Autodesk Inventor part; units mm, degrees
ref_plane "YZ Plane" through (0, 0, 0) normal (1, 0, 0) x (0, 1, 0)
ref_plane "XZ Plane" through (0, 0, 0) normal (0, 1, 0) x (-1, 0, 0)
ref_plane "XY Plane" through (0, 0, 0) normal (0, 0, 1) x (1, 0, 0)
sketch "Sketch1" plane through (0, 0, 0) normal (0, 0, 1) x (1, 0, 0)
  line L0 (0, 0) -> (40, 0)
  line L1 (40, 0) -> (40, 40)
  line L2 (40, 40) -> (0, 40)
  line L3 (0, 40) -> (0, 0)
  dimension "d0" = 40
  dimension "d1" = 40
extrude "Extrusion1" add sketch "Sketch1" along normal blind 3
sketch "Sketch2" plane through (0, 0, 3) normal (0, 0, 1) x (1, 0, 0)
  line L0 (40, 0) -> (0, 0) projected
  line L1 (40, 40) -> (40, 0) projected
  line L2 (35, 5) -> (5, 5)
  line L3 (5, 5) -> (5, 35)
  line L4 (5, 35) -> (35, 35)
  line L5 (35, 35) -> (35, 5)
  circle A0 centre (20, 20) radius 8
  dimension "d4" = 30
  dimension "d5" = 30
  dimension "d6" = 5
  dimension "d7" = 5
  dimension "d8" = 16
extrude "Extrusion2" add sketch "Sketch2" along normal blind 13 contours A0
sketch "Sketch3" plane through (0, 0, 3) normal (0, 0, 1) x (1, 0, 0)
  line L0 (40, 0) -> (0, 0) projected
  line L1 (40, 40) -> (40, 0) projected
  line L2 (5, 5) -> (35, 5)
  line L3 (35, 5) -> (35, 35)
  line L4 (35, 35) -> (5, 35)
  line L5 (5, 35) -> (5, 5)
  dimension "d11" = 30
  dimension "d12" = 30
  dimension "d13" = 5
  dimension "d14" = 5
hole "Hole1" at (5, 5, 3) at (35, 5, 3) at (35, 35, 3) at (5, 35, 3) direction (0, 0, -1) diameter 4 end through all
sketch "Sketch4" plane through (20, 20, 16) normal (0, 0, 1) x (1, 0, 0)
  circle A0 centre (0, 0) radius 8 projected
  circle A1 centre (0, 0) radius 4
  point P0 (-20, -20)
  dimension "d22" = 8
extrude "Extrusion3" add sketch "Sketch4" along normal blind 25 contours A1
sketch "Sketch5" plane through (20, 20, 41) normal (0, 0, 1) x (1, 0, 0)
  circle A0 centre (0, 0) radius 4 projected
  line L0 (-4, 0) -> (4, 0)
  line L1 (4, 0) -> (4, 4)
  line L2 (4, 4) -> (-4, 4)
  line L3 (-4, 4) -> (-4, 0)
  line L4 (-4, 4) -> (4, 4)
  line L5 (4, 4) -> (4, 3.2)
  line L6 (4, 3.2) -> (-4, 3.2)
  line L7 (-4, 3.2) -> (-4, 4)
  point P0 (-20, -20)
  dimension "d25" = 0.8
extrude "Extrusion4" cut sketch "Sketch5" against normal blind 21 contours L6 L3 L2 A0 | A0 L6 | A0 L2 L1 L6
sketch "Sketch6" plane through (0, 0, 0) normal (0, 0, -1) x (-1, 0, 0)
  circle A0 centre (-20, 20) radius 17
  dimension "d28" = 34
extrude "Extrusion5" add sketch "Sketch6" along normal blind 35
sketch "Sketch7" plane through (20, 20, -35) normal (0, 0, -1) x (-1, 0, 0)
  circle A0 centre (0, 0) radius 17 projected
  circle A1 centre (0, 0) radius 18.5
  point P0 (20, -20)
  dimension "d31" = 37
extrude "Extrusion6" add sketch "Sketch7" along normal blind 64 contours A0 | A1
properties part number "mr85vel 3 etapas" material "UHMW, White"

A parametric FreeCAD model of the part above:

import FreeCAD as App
import Part
import Sketcher
from FreeCAD import Vector
Q = App.Units.Quantity


def add_polygon(sketch, points):
    """Adds a closed chain of lines whose ends are joined by coincident constraints."""
    first, n = sketch.GeometryCount, len(points)
    for a, b in zip(points, points[1:] + points[:1]):
        sketch.addGeometry(Part.LineSegment(App.Vector(*a, 0), App.Vector(*b, 0)), False)
    for i in range(n):
        sketch.addConstraint(Sketcher.Constraint("Coincident", first + i, 2, first + (i + 1) % n, 1))

doc = App.newDocument("Part")
params = doc.addObject("Spreadsheet::Sheet", "Params")
for row, (alias, value) in enumerate([
    ("sketch1_width", "40 mm"),
    ("pad1_length", "3 mm"),
    ("sketch2_diameter", "16 mm"),
    ("pad2_length", "13 mm"),
    ("sketch3_diameter", "4 mm"),
    ("hole_diameter", "4 mm"),
    ("sketch4_diameter", "8 mm"),
    ("pad3_length", "25 mm"),
    ("sketch5_height", "0.8 mm"),
    ("sketch5_width", "8 mm"),
    ("pocket1_length", "21 mm"),
    ("sketch6_diameter", "34 mm"),
    ("pad4_length", "35 mm"),
    ("sketch7_diameter", "37 mm"),
    ("pad5_length", "64 mm"),
], start=1):
    params.set(f"A{row}", alias)
    params.set(f"B{row}", "=" + value)
    params.setAlias(f"B{row}", alias)

body = doc.addObject("PartDesign::Body", "Body")

# Sketch on XY plane
sketch1 = body.newObject("Sketcher::SketchObject", "Sketch")
sketch1.AttachmentSupport = (doc.getObject("XY_Plane"), [""])
sketch1.MapMode = "FlatFace"
add_polygon(sketch1, [(0, 40), (0, 0), (40, 0), (40, 40)])  # lines 0-3
sketch1.addConstraint([
    Sketcher.Constraint("Vertical", 0),
    Sketcher.Constraint("Horizontal", 1),
    Sketcher.Constraint("Vertical", 2),
    Sketcher.Constraint("Horizontal", 3),
    Sketcher.Constraint("Coincident", 0, 2, -1, 1),
    Sketcher.Constraint("Equal", 3, 0),
    Sketcher.Constraint("DistanceX", 1, 1, 1, 2, Q("40 mm")),
])
sketch1.setExpression("Constraints[10]", "Params.sketch1_width")
pad1 = body.newObject("PartDesign::Pad", "Pad")
pad1.Profile = sketch1
pad1.setExpression("Length", "Params.pad1_length")

# Sketch on XY plane
sketch2 = body.newObject("Sketcher::SketchObject", "Sketch001")
sketch2.AttachmentSupport = (doc.getObject("XY_Plane"), [""])
sketch2.MapMode = "FlatFace"
sketch2.AttachmentOffset = App.Placement(Vector(0, 0, 3), App.Rotation())
sketch2.addGeometry(Part.Circle(Vector(20, 20, 0), Vector(0, 0, 1), 8), False)
sketch2.addConstraint([
    Sketcher.Constraint("Diameter", 0, Q("16 mm")),
    Sketcher.Constraint("DistanceX", -1, 1, 0, 3, Q("20 mm")),
    Sketcher.Constraint("DistanceY", -1, 1, 0, 3, Q("20 mm")),
])
sketch2.setExpression("Constraints[0]", "Params.sketch2_diameter")
pad2 = body.newObject("PartDesign::Pad", "Pad001")
pad2.Profile = sketch2
pad2.setExpression("Length", "Params.pad2_length")

# Sketch on XY plane
sketch3 = body.newObject("Sketcher::SketchObject", "Sketch002")
sketch3.AttachmentSupport = (doc.getObject("XY_Plane"), [""])
sketch3.MapMode = "FlatFace"
sketch3.AttachmentOffset = App.Placement(Vector(0, 0, 3), App.Rotation())
sketch3.addGeometry([
    Part.Circle(Vector(5, 5, 0), Vector(0, 0, 1), 2),
    Part.Circle(Vector(35, 5, 0), Vector(0, 0, 1), 2),
    Part.Circle(Vector(35, 35, 0), Vector(0, 0, 1), 2),
    Part.Circle(Vector(5, 35, 0), Vector(0, 0, 1), 2),
], False)
sketch3.addConstraint([
    Sketcher.Constraint("Equal", 0, 1),
    Sketcher.Constraint("Equal", 1, 2),
    Sketcher.Constraint("Equal", 2, 3),
    Sketcher.Constraint("Horizontal", 0, 3, 1, 3),
    Sketcher.Constraint("Horizontal", 2, 3, 3, 3),
    Sketcher.Constraint("Vertical", 1, 3, 2, 3),
    Sketcher.Constraint("Vertical", 0, 3, 3, 3),
    Sketcher.Constraint("Diameter", 0, Q("4 mm")),
    Sketcher.Constraint("DistanceX", -1, 1, 0, 3, Q("5 mm")),
    Sketcher.Constraint("DistanceY", -1, 1, 0, 3, Q("5 mm")),
    Sketcher.Constraint("DistanceX", -1, 1, 1, 3, Q("35 mm")),
    Sketcher.Constraint("DistanceY", -1, 1, 2, 3, Q("35 mm")),
])
sketch3.setExpression("Constraints[7]", "Params.sketch3_diameter")
doc.recompute()
hole = body.newObject("PartDesign::Hole", "Hole")
hole.Profile = sketch3
hole.ThreadType = "None"
hole.setExpression("Diameter", "Params.hole_diameter")
hole.DepthType = "ThroughAll"

# Sketch on XY plane
sketch4 = body.newObject("Sketcher::SketchObject", "Sketch003")
sketch4.AttachmentSupport = (doc.getObject("XY_Plane"), [""])
sketch4.MapMode = "FlatFace"
sketch4.AttachmentOffset = App.Placement(Vector(0, 0, 16), App.Rotation())
sketch4.addGeometry(Part.Circle(Vector(20, 20, 0), Vector(0, 0, 1), 4), False)
sketch4.addConstraint([
    Sketcher.Constraint("Diameter", 0, Q("8 mm")),
    Sketcher.Constraint("DistanceX", -1, 1, 0, 3, Q("20 mm")),
    Sketcher.Constraint("DistanceY", -1, 1, 0, 3, Q("20 mm")),
])
sketch4.setExpression("Constraints[0]", "Params.sketch4_diameter")
pad3 = body.newObject("PartDesign::Pad", "Pad002")
pad3.Profile = sketch4
pad3.setExpression("Length", "Params.pad3_length")

# Sketch on XY plane
sketch5 = body.newObject("Sketcher::SketchObject", "Sketch004")
sketch5.AttachmentSupport = (doc.getObject("XY_Plane"), [""])
sketch5.MapMode = "FlatFace"
sketch5.AttachmentOffset = App.Placement(Vector(0, 0, 41), App.Rotation())
add_polygon(sketch5, [(16, 23.2), (24, 23.2), (24, 24), (16, 24)])  # lines 0-3
sketch5.addConstraint([
    Sketcher.Constraint("Horizontal", 0),
    Sketcher.Constraint("Vertical", 1),
    Sketcher.Constraint("Horizontal", 2),
    Sketcher.Constraint("Vertical", 3),
    Sketcher.Constraint("DistanceY", 1, 1, 1, 2, Q("0.8 mm")),
    Sketcher.Constraint("DistanceX", 0, 1, 0, 2, Q("8 mm")),
    Sketcher.Constraint("DistanceX", -1, 1, 0, 2, Q("24 mm")),
    Sketcher.Constraint("DistanceY", -1, 1, 1, 2, Q("24 mm")),
])
sketch5.setExpression("Constraints[8]", "Params.sketch5_height")
sketch5.setExpression("Constraints[9]", "Params.sketch5_width")
pocket1 = body.newObject("PartDesign::Pocket", "Pocket")
pocket1.Profile = sketch5
pocket1.setExpression("Length", "Params.pocket1_length")

# Sketch on XY plane
sketch6 = body.newObject("Sketcher::SketchObject", "Sketch005")
sketch6.AttachmentSupport = (doc.getObject("XY_Plane"), [""])
sketch6.MapMode = "FlatFace"
sketch6.addGeometry(Part.Circle(Vector(20, 20, 0), Vector(0, 0, 1), 17), False)
sketch6.addConstraint([
    Sketcher.Constraint("Diameter", 0, Q("34 mm")),
    Sketcher.Constraint("DistanceX", -1, 1, 0, 3, Q("20 mm")),
    Sketcher.Constraint("DistanceY", -1, 1, 0, 3, Q("20 mm")),
])
sketch6.setExpression("Constraints[0]", "Params.sketch6_diameter")
pad4 = body.newObject("PartDesign::Pad", "Pad003")
pad4.Profile = sketch6
pad4.setExpression("Length", "Params.pad4_length")
pad4.Reversed = True

# Sketch on XY plane
sketch7 = body.newObject("Sketcher::SketchObject", "Sketch006")
sketch7.AttachmentSupport = (doc.getObject("XY_Plane"), [""])
sketch7.MapMode = "FlatFace"
sketch7.AttachmentOffset = App.Placement(Vector(0, 0, -35), App.Rotation())
sketch7.addGeometry(Part.Circle(Vector(20, 20, 0), Vector(0, 0, 1), 18.5), False)
sketch7.addConstraint([
    Sketcher.Constraint("Diameter", 0, Q("37 mm")),
    Sketcher.Constraint("DistanceX", -1, 1, 0, 3, Q("20 mm")),
    Sketcher.Constraint("DistanceY", -1, 1, 0, 3, Q("20 mm")),
])
sketch7.setExpression("Constraints[0]", "Params.sketch7_diameter")
pad5 = body.newObject("PartDesign::Pad", "Pad004")
pad5.Profile = sketch7
pad5.setExpression("Length", "Params.pad5_length")
pad5.Reversed = True

doc.recompute()
